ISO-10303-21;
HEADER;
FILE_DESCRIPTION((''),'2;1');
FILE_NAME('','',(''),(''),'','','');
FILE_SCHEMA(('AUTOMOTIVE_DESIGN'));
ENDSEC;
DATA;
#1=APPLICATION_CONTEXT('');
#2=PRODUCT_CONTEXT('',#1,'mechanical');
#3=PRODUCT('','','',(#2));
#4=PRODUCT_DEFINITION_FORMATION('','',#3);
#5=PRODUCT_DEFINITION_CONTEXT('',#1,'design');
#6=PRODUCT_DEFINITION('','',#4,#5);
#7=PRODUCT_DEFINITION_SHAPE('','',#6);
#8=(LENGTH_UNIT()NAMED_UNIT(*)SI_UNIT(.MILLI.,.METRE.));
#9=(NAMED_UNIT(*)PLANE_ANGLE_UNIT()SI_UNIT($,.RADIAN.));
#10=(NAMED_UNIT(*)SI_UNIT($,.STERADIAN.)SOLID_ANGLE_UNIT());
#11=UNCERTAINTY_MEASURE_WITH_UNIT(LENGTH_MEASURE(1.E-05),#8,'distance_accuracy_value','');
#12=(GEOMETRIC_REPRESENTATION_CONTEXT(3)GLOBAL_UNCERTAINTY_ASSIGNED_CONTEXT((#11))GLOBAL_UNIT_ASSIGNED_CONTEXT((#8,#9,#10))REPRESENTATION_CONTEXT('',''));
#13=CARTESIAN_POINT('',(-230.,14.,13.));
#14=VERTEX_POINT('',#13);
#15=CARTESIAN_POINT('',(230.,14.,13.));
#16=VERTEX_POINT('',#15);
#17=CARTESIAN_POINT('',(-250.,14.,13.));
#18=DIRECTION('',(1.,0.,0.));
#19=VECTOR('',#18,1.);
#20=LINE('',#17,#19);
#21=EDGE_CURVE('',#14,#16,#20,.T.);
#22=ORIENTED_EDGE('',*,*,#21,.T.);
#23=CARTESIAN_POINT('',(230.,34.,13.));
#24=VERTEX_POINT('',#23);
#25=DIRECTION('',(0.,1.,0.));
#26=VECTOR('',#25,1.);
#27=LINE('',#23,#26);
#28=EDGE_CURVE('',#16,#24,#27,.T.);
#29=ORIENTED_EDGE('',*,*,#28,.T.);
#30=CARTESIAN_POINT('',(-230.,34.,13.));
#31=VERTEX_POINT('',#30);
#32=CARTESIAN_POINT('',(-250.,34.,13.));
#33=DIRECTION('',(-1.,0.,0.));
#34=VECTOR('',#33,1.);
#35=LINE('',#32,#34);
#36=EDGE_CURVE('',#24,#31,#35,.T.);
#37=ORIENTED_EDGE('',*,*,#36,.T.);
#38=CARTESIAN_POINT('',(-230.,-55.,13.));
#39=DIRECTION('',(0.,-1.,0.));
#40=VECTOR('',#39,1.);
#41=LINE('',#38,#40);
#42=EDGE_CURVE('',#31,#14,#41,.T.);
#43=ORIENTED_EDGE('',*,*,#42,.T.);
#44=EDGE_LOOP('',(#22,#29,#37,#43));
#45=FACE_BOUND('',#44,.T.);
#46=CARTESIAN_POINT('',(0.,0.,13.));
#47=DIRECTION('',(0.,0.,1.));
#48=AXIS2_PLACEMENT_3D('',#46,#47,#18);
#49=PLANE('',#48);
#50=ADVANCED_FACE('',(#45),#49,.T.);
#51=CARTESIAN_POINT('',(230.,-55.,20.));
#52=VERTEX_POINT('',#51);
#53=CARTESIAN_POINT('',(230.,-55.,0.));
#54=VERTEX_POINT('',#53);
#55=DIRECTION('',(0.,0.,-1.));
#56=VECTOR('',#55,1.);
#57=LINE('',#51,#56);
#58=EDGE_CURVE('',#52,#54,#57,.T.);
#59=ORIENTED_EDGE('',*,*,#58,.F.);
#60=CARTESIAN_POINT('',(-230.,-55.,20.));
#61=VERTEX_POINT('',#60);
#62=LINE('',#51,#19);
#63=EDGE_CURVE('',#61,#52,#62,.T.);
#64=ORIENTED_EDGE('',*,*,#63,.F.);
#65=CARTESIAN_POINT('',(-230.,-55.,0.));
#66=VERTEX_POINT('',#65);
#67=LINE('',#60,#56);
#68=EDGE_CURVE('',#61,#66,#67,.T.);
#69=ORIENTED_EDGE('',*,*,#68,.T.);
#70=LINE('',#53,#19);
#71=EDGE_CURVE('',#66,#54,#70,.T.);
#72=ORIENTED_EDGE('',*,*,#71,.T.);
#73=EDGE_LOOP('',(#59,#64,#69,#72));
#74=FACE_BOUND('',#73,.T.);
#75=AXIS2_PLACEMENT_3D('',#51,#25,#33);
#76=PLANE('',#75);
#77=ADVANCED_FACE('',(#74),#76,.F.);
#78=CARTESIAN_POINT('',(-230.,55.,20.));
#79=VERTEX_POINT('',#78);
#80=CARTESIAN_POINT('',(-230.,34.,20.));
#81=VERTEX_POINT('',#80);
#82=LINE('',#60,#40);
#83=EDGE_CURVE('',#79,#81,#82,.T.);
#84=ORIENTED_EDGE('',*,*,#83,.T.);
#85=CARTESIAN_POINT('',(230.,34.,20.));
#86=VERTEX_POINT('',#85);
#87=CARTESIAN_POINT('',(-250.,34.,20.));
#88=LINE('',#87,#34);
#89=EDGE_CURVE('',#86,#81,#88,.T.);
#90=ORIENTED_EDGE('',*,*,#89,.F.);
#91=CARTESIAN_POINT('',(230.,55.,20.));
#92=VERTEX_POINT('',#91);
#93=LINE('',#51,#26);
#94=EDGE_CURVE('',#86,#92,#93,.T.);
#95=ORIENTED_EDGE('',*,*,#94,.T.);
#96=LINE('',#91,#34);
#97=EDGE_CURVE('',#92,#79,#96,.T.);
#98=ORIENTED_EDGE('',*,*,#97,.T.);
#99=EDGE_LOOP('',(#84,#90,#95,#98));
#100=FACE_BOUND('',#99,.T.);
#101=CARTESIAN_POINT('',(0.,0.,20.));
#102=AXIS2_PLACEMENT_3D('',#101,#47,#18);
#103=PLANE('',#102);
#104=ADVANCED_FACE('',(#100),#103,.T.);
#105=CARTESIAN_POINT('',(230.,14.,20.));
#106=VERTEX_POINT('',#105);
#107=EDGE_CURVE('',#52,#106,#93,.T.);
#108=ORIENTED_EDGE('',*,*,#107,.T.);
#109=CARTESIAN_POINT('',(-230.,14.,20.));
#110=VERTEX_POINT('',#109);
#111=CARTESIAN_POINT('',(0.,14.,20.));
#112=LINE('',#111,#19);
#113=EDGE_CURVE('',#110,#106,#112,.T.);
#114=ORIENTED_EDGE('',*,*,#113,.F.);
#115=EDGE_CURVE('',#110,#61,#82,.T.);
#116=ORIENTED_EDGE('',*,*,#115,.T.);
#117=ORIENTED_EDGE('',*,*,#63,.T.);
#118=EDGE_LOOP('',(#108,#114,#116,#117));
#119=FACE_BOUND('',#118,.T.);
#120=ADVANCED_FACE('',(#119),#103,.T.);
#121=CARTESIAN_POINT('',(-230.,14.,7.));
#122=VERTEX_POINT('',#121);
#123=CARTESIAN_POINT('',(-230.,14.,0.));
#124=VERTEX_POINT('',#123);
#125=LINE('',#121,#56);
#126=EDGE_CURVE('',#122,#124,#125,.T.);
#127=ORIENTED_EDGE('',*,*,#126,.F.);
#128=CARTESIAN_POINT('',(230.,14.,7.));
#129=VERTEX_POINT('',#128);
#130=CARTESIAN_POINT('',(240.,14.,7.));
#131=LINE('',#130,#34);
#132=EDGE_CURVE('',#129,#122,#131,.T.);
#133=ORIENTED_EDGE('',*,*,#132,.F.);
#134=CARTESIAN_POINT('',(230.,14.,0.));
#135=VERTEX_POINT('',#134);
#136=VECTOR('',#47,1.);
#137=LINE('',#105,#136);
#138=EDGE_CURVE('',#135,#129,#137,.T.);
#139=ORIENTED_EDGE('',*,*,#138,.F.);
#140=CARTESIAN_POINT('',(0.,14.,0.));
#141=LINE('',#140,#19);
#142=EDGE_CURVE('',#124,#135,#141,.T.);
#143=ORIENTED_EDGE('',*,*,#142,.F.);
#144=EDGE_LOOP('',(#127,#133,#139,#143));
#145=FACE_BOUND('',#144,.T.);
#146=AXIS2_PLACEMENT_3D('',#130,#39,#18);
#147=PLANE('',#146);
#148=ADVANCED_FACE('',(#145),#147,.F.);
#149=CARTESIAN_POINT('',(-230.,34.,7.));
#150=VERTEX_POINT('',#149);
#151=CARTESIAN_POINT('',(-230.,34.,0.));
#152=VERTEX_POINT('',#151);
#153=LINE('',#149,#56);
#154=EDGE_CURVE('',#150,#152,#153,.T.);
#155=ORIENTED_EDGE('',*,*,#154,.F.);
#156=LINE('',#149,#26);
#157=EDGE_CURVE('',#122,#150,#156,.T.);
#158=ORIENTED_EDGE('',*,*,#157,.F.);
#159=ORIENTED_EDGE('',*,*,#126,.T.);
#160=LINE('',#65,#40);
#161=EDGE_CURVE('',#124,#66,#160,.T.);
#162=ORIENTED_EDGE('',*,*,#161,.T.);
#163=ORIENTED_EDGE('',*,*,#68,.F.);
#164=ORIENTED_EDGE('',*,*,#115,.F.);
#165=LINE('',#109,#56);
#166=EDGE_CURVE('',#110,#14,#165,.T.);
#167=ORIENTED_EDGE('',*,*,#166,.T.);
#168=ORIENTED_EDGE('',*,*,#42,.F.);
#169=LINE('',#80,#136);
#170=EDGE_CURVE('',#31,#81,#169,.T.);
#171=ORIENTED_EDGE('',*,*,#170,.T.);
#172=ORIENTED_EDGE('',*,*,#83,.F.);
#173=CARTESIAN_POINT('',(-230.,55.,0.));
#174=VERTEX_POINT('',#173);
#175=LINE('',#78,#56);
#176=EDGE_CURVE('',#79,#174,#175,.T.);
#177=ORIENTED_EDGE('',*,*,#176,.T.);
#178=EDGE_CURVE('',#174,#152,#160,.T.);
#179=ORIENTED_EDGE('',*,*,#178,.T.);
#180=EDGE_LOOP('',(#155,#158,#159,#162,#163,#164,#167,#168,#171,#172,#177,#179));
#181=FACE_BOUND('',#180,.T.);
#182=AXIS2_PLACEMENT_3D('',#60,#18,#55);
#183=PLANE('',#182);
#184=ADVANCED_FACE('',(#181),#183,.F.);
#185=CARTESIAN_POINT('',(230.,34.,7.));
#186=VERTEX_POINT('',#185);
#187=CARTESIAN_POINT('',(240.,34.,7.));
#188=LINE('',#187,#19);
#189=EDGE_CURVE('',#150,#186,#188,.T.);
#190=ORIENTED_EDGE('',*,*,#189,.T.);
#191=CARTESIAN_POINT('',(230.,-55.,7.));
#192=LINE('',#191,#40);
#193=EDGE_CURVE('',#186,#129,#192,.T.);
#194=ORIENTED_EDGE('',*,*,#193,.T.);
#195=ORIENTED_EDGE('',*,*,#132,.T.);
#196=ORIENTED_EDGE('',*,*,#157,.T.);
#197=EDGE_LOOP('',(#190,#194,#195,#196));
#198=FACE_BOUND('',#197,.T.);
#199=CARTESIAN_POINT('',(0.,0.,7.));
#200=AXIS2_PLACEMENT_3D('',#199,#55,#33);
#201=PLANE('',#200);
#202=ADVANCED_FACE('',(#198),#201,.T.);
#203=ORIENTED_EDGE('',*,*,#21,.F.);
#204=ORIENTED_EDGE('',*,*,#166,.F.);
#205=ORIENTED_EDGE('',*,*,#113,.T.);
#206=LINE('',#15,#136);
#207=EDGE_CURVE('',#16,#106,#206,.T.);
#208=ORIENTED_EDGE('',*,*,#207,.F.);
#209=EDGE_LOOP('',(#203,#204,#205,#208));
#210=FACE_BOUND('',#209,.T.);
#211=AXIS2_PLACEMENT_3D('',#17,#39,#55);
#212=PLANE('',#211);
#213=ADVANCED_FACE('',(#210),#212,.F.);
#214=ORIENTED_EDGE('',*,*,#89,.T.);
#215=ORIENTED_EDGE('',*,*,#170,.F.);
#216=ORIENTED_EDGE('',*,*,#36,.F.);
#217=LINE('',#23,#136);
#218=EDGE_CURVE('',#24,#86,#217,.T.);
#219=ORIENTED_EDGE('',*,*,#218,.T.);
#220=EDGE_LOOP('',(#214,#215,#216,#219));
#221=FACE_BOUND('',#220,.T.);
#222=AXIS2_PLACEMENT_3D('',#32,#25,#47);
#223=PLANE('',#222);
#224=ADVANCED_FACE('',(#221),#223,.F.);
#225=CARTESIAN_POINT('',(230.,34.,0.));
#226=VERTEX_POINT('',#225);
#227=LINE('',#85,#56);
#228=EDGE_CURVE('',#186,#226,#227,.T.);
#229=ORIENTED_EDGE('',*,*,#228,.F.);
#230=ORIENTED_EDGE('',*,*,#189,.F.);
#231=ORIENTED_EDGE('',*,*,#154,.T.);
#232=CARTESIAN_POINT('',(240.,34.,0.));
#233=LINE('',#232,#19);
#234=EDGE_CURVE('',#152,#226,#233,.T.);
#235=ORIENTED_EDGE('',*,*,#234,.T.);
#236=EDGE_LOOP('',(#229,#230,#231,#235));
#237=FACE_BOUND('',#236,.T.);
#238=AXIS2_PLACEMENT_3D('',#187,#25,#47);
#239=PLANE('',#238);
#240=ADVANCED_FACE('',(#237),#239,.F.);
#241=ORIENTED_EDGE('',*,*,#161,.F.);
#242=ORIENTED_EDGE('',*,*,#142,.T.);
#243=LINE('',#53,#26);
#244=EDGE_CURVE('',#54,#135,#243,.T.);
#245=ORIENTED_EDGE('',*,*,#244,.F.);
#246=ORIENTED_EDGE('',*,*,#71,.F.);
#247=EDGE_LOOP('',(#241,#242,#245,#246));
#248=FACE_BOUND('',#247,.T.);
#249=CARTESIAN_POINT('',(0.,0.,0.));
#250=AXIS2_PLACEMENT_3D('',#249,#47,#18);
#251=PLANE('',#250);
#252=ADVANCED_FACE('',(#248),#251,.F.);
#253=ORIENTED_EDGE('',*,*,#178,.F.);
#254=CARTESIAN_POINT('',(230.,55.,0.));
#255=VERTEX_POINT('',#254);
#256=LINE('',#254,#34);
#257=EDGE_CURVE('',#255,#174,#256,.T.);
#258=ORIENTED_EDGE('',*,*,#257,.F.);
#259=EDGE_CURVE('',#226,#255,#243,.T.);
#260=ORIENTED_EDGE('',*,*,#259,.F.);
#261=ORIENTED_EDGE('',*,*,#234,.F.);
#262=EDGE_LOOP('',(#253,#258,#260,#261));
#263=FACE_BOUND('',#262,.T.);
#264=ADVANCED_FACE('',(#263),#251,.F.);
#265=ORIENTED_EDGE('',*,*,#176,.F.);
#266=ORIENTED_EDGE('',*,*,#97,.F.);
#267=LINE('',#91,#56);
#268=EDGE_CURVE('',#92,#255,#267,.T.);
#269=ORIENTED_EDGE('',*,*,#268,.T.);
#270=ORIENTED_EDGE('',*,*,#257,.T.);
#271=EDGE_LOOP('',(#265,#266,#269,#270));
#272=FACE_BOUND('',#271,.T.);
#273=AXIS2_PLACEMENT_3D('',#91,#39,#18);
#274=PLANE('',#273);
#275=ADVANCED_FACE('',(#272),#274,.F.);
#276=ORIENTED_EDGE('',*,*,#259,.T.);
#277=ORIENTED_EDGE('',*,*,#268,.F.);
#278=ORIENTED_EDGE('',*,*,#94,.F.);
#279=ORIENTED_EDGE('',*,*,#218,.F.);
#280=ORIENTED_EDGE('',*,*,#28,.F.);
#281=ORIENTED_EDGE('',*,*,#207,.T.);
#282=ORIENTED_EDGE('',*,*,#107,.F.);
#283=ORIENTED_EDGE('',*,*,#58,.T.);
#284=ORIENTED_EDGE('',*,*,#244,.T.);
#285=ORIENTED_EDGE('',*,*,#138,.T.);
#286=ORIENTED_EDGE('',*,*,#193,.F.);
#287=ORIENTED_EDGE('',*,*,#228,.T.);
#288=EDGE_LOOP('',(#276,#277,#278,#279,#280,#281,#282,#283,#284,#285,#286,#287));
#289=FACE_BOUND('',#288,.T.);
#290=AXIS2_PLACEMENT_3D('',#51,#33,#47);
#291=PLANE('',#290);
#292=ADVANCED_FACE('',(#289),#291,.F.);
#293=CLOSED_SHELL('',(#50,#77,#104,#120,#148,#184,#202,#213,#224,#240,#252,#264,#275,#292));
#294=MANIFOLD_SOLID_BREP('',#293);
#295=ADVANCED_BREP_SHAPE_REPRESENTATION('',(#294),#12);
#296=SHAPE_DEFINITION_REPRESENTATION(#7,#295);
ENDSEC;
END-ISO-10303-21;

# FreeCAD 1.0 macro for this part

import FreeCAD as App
import Part
import Sketcher


def add_polygon(sketch, points):
    """Adds a closed chain of lines whose ends are joined by coincident constraints."""
    first, n = sketch.GeometryCount, len(points)
    for a, b in zip(points, points[1:] + points[:1]):
        sketch.addGeometry(Part.LineSegment(App.Vector(*a, 0), App.Vector(*b, 0)), False)
    for i in range(n):
        sketch.addConstraint(Sketcher.Constraint("Coincident", first + i, 2, first + (i + 1) % n, 1))

doc = App.newDocument("Part")
body = doc.addObject("PartDesign::Body", "Body")

# Sketch on XY plane
sketch1 = body.newObject("Sketcher::SketchObject", "Sketch")
sketch1.AttachmentSupport = (doc.getObject("XY_Plane"), [""])
sketch1.MapMode = "FlatFace"
add_polygon(sketch1, [(-230, 55), (-230, -55), (230, -55), (230, 55)])  # lines 0-3
sketch1.addConstraint([
    Sketcher.Constraint("Vertical", 0),
    Sketcher.Constraint("Horizontal", 1),
    Sketcher.Constraint("Vertical", 2),
    Sketcher.Constraint("Horizontal", 3),
    Sketcher.Constraint("Symmetric", 0, 2, 2, 2, -1, 1),
    Sketcher.Constraint("DistanceX", 1, 1, 1, 2, 460.0),
    Sketcher.Constraint("DistanceY", 0, 2, 0, 1, 110.0),
])
pad1 = body.newObject("PartDesign::Pad", "Pad")
pad1.Profile = sketch1
pad1.Length = 20

# Sketch on XY plane
sketch2 = body.newObject("Sketcher::SketchObject", "Sketch001")
sketch2.AttachmentSupport = (doc.getObject("XY_Plane"), [""])
sketch2.MapMode = "FlatFace"
sketch2.AttachmentOffset = App.Placement(App.Vector(0, 0, 20), App.Rotation())
add_polygon(sketch2, [(-250, 34), (-250, 14), (230, 14), (230, 34)])  # lines 0-3
sketch2.addConstraint([
    Sketcher.Constraint("Vertical", 0),
    Sketcher.Constraint("Horizontal", 1),
    Sketcher.Constraint("Vertical", 2),
    Sketcher.Constraint("Horizontal", 3),
    Sketcher.Constraint("DistanceX", 1, 1, 1, 2, 480.0),
    Sketcher.Constraint("DistanceY", 0, 2, 0, 1, 20.0),
    Sketcher.Constraint("DistanceX", 0, 2, -1, 1, 250.0),
    Sketcher.Constraint("DistanceY", -1, 1, 0, 2, 14.0),
])
pocket1 = body.newObject("PartDesign::Pocket", "Pocket")
pocket1.Profile = sketch2
pocket1.Length = 7

# Sketch on XY plane
sketch3 = body.newObject("Sketcher::SketchObject", "Sketch002")
sketch3.AttachmentSupport = (doc.getObject("XY_Plane"), [""])
sketch3.MapMode = "FlatFace"
add_polygon(sketch3, [(240, 34), (240, 14), (-230, 14), (-230, 34)])  # lines 0-3
sketch3.addConstraint([
    Sketcher.Constraint("Vertical", 0),
    Sketcher.Constraint("Horizontal", 1),
    Sketcher.Constraint("Vertical", 2),
    Sketcher.Constraint("Horizontal", 3),
    Sketcher.Constraint("DistanceX", 1, 2, 1, 1, 470.0),
    Sketcher.Constraint("DistanceY", 0, 2, 0, 1, 20.0),
    Sketcher.Constraint("DistanceX", -1, 1, 0, 2, 240.0),
    Sketcher.Constraint("DistanceY", -1, 1, 0, 2, 14.0),
])
pocket2 = body.newObject("PartDesign::Pocket", "Pocket001")
pocket2.Profile = sketch3
pocket2.Length = 7
pocket2.Reversed = True

doc.recompute()
